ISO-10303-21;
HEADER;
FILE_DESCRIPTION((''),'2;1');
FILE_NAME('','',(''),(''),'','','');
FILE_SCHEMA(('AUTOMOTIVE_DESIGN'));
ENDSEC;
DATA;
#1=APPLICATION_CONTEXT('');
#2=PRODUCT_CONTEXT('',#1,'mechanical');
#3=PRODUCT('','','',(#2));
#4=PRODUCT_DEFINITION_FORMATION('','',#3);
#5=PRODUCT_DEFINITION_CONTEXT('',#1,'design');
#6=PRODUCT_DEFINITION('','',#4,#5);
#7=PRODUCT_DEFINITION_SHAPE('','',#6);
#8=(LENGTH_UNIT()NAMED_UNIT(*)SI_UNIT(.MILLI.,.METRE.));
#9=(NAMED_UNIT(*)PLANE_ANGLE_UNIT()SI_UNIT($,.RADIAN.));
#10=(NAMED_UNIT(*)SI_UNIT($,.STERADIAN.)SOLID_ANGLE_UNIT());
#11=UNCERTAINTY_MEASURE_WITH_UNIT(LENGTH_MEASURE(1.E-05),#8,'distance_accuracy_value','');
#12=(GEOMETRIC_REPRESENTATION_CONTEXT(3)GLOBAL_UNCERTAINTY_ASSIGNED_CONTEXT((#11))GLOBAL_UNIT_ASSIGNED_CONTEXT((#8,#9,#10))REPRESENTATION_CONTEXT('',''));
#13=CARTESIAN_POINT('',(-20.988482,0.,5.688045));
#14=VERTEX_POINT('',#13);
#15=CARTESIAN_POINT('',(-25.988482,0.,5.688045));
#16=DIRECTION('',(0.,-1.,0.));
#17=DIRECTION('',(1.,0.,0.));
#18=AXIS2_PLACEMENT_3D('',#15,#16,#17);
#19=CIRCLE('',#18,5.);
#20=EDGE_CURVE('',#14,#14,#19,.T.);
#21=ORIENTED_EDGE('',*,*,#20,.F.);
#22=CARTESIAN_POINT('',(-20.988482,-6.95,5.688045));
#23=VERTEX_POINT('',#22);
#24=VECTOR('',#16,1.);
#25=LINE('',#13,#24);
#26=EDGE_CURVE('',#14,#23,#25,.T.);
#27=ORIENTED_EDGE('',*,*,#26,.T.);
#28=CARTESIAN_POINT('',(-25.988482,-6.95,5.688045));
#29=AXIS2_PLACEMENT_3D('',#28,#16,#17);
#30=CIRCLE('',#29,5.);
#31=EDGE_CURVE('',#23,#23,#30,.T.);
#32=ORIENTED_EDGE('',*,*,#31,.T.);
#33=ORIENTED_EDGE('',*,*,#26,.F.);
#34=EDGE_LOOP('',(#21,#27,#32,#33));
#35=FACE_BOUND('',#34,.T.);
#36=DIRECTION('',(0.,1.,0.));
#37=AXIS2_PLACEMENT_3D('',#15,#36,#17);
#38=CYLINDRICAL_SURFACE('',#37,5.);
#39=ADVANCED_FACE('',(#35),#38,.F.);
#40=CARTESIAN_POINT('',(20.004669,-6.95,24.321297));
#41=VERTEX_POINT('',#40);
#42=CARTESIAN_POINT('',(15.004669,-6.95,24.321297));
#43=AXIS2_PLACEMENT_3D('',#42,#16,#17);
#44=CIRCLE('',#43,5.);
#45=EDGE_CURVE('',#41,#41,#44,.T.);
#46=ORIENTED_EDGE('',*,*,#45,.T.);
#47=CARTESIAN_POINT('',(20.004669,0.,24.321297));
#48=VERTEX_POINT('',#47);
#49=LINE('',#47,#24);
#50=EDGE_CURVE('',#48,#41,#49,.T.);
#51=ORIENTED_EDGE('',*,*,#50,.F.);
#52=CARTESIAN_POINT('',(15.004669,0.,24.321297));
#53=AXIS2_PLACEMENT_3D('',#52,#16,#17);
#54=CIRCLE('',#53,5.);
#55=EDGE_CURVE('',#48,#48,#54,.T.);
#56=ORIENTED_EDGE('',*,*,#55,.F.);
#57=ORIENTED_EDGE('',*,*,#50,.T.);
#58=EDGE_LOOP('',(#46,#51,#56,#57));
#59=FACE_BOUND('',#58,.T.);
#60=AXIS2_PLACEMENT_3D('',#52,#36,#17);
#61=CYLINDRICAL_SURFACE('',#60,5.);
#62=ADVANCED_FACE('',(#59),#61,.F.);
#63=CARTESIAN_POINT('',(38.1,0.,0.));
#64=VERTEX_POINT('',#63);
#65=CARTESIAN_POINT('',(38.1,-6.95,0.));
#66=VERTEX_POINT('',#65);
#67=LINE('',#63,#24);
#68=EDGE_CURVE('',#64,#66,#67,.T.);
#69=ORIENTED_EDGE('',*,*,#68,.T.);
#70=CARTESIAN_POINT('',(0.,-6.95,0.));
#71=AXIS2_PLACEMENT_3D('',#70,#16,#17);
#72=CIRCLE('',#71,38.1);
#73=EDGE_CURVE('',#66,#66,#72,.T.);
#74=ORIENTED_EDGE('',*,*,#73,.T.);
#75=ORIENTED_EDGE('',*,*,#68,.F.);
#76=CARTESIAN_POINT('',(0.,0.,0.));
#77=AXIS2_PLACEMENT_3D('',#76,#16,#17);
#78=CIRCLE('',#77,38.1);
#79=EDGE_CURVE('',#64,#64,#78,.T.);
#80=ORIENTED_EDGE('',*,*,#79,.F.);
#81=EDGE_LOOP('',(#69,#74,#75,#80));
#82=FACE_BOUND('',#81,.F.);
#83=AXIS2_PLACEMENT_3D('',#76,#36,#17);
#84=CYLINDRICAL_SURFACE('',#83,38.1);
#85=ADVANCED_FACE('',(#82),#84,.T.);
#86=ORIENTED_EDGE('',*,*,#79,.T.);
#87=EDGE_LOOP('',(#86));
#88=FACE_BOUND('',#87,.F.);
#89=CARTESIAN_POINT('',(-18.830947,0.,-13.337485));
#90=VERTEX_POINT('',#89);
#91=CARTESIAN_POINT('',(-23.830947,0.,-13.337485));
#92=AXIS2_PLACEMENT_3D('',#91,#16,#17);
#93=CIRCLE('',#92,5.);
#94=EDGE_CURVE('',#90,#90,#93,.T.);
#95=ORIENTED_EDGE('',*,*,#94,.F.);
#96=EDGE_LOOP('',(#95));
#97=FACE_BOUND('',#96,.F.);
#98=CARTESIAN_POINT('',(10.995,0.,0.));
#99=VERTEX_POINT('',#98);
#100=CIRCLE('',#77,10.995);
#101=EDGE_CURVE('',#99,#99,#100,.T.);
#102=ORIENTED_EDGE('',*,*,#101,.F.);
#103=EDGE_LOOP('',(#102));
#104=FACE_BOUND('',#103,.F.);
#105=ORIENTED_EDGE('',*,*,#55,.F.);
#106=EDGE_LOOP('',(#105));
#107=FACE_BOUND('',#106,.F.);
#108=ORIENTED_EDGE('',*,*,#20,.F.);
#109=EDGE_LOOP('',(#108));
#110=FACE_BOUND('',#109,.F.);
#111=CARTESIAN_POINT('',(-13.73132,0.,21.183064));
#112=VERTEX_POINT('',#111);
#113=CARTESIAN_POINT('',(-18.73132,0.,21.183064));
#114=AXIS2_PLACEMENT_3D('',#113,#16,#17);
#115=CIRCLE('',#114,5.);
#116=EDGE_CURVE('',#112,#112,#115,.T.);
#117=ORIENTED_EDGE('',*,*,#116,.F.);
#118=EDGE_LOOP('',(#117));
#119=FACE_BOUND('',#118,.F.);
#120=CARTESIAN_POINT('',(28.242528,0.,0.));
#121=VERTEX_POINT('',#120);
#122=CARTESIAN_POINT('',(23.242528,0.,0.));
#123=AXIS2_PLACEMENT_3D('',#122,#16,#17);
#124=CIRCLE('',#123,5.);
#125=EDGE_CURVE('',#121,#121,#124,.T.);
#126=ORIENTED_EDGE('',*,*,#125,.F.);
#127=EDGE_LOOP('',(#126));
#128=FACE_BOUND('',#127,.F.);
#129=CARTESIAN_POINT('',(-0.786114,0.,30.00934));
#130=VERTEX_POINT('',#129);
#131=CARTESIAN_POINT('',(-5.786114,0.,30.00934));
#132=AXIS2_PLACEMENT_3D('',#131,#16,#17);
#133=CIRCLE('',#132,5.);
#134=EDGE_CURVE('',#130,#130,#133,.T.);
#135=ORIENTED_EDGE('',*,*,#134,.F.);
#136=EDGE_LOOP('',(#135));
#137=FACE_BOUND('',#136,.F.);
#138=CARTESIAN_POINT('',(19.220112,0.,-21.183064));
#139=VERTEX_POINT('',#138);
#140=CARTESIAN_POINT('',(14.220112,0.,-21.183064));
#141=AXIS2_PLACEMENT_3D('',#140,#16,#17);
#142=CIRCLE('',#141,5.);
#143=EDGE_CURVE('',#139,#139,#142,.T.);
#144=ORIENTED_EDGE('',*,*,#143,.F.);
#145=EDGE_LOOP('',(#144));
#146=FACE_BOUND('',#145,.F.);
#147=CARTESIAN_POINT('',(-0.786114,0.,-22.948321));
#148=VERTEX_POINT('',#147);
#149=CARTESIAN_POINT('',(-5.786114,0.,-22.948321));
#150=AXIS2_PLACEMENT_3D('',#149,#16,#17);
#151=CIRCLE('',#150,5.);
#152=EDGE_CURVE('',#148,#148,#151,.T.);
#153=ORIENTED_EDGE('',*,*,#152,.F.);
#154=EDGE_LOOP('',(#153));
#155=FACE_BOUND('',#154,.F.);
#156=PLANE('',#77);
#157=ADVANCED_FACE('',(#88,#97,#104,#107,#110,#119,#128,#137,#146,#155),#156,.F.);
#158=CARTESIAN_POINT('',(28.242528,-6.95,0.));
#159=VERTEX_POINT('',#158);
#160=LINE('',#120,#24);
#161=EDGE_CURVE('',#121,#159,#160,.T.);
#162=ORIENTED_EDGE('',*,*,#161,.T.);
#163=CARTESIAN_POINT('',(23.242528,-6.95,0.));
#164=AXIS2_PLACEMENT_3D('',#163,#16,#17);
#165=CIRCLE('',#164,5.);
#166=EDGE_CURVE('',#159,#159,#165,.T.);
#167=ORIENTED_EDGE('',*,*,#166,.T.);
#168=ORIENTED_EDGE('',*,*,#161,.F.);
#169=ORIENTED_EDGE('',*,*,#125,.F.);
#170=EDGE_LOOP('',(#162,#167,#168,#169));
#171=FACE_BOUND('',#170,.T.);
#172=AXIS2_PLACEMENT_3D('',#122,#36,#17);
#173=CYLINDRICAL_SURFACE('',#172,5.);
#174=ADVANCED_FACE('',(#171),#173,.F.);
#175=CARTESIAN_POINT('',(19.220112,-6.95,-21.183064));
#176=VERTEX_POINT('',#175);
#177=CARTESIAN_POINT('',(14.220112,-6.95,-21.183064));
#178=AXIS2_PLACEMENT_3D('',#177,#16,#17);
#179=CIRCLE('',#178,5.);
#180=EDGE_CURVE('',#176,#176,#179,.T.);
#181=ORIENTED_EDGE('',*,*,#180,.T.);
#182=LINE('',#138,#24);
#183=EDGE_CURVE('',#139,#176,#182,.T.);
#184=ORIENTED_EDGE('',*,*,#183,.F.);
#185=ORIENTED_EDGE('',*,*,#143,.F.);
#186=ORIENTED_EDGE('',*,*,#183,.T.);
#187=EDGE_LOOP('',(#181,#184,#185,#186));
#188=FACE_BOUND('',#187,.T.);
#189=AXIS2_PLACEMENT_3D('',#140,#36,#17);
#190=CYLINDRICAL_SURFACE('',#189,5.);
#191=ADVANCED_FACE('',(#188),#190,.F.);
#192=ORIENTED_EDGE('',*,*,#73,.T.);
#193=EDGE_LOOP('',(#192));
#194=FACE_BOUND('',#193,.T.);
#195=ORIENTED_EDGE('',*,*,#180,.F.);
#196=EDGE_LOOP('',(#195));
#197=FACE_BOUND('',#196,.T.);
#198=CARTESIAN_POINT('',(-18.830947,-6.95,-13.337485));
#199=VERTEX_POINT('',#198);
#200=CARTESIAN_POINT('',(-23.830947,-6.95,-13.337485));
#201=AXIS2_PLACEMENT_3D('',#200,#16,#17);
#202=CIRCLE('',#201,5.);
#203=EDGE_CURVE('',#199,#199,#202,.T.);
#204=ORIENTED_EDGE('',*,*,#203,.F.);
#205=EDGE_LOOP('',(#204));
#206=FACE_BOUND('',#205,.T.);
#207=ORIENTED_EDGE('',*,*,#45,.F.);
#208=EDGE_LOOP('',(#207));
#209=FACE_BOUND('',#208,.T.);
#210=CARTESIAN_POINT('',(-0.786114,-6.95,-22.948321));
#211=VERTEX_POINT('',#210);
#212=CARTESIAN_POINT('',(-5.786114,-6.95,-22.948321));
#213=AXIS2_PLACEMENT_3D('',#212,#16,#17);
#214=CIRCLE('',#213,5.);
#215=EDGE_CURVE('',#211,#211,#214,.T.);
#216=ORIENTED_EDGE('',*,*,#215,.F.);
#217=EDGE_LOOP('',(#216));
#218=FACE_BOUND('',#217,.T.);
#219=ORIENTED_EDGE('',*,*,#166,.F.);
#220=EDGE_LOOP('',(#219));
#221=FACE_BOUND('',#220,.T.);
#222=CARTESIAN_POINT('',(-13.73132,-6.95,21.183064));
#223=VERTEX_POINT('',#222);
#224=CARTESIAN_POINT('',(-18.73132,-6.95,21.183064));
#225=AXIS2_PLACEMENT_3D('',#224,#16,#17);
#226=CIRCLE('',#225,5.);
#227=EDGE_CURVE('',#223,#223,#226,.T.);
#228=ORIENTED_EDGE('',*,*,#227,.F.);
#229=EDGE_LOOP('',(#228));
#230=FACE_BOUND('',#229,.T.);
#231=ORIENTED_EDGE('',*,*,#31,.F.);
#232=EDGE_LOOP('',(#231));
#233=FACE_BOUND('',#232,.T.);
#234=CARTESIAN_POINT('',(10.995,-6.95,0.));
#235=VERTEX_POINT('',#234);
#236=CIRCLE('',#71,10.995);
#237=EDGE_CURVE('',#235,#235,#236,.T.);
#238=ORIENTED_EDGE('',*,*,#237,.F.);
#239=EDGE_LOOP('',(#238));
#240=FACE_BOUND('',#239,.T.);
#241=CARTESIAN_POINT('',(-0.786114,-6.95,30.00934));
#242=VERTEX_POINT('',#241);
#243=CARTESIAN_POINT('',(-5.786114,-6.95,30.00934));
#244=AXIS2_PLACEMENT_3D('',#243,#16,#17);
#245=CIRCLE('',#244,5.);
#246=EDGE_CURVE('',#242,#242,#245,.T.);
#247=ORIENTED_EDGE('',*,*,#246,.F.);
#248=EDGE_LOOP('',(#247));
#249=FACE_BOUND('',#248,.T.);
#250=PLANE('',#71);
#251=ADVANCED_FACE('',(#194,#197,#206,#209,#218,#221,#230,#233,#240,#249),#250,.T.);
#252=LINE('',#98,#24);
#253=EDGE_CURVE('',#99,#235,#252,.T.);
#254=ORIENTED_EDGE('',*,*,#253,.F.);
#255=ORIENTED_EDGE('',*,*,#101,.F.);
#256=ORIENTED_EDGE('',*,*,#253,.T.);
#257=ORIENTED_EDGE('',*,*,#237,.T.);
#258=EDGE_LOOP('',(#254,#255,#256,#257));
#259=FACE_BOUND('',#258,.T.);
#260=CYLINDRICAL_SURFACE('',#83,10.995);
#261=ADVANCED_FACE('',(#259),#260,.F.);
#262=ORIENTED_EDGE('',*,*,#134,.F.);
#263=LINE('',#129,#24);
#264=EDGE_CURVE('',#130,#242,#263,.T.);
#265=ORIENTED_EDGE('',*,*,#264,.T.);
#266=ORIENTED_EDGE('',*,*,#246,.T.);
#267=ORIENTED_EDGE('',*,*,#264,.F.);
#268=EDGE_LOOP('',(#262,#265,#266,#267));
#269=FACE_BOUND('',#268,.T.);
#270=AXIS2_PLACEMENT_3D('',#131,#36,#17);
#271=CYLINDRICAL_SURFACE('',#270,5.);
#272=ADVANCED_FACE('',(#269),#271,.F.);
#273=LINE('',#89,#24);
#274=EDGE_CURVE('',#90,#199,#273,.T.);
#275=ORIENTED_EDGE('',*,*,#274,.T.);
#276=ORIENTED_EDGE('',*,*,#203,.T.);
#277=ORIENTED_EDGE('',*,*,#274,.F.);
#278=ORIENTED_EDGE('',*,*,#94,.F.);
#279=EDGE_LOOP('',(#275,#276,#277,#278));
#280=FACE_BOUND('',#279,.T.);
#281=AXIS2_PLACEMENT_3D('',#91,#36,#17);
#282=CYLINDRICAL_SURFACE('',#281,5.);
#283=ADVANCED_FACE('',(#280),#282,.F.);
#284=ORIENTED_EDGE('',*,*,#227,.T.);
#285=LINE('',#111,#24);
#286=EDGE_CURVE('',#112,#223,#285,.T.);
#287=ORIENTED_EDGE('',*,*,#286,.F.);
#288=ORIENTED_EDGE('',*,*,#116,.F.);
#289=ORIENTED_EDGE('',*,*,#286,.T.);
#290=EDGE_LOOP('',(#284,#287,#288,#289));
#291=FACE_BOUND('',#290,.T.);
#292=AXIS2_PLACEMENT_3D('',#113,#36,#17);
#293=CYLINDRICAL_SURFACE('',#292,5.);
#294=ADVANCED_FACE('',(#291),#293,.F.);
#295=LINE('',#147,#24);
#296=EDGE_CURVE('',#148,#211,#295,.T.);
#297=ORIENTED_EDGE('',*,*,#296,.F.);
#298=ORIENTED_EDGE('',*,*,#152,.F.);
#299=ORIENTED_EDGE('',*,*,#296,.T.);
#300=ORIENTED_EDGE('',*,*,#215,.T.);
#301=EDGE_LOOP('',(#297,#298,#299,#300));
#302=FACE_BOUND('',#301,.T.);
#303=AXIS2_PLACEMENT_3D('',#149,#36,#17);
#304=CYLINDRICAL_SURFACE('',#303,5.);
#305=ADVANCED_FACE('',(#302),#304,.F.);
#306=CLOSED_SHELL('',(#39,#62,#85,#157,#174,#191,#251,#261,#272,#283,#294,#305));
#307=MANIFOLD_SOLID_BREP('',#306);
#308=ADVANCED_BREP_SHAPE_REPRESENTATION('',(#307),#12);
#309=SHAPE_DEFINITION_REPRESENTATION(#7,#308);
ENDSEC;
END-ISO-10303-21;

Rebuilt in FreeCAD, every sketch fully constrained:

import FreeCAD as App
import Part
import Sketcher
Q = App.Units.Quantity

doc = App.newDocument("Part")
params = doc.addObject("Spreadsheet::Sheet", "Params")
for row, (alias, value) in enumerate([
    ("sketch1_diameter", "10 mm"),
    ("sketch1_diameter2", "76.2 mm"),
    ("sketch1_diameter3", "21.99 mm"),
    ("pad1_length", "6.95 mm"),
], start=1):
    params.set(f"A{row}", alias)
    params.set(f"B{row}", "=" + value)
    params.setAlias(f"B{row}", alias)

body = doc.addObject("PartDesign::Body", "Body")

sketch1 = doc.addObject("Sketcher::SketchObject", "Sketch")
body.addObject(sketch1)
sketch1.AttachmentSupport = (doc.XZ_Plane, [""])
sketch1.MapMode = "FlatFace"
sketch1.addGeometry(Part.Circle(App.Vector(0, 0, 0), App.Vector(0, 0, 1), 38.1), False)
sketch1.addGeometry(Part.Circle(App.Vector(-23.830947, -13.337485, 0), App.Vector(0, 0, 1), 5), False)
sketch1.addGeometry(Part.Circle(App.Vector(-5.786114, -22.948321, 0), App.Vector(0, 0, 1), 5), False)
sketch1.addGeometry(Part.Circle(App.Vector(14.220112, -21.183064, 0), App.Vector(0, 0, 1), 5), False)
sketch1.addGeometry(Part.Circle(App.Vector(0, 0, 0), App.Vector(0, 0, 1), 10.995), False)
sketch1.addGeometry(Part.Circle(App.Vector(23.242528, 0, 0), App.Vector(0, 0, 1), 5), False)
sketch1.addGeometry(Part.Circle(App.Vector(-25.988482, 5.688045, 0), App.Vector(0, 0, 1), 5), False)
sketch1.addGeometry(Part.Circle(App.Vector(-18.73132, 21.183064, 0), App.Vector(0, 0, 1), 5), False)
sketch1.addGeometry(Part.Circle(App.Vector(-5.786114, 30.00934, 0), App.Vector(0, 0, 1), 5), False)
sketch1.addGeometry(Part.Circle(App.Vector(15.004669, 24.321297, 0), App.Vector(0, 0, 1), 5), False)
sketch1.addConstraint(Sketcher.Constraint("Coincident", 0, 3, -1, 1))
sketch1.addConstraint(Sketcher.Constraint("Coincident", 4, 3, -1, 1))
sketch1.addConstraint(Sketcher.Constraint("Equal", 1, 2))
sketch1.addConstraint(Sketcher.Constraint("Equal", 2, 3))
sketch1.addConstraint(Sketcher.Constraint("Equal", 3, 5))
sketch1.addConstraint(Sketcher.Constraint("Equal", 5, 6))
sketch1.addConstraint(Sketcher.Constraint("Equal", 6, 7))
sketch1.addConstraint(Sketcher.Constraint("Equal", 7, 8))
sketch1.addConstraint(Sketcher.Constraint("Equal", 8, 9))
sketch1.addConstraint(Sketcher.Constraint("PointOnObject", 5, 3, -1))
sketch1.addConstraint(Sketcher.Constraint("Vertical", 2, 3, 8, 3))
sketch1.addConstraint(Sketcher.Constraint("Diameter", 1, Q("10 mm")))
sketch1.addConstraint(Sketcher.Constraint("Diameter", 0, Q("76.2 mm")))
sketch1.addConstraint(Sketcher.Constraint("Diameter", 4, Q("21.99 mm")))
sketch1.addConstraint(Sketcher.Constraint("DistanceY", 2, 3, -1, 1, Q("22.948321 mm")))
sketch1.addConstraint(Sketcher.Constraint("DistanceX", -1, 1, 5, 3, Q("23.242528 mm")))
sketch1.addConstraint(Sketcher.Constraint("DistanceX", 7, 3, -1, 1, Q("18.73132 mm")))
sketch1.addConstraint(Sketcher.Constraint("DistanceY", -1, 1, 8, 3, Q("30.00934 mm")))
sketch1.addConstraint(Sketcher.Constraint("DistanceX", -1, 1, 9, 3, Q("15.004669 mm")))
sketch1.addConstraint(Sketcher.Constraint("DistanceX", 1, 3, 3, 3, Q("38.051059 mm")))
sketch1.addConstraint(Sketcher.Constraint("DistanceY", 3, 3, 1, 3, Q("7.845579 mm")))
sketch1.addConstraint(Sketcher.Constraint("DistanceY", 1, 3, 6, 3, Q("19.02553 mm")))
sketch1.addConstraint(Sketcher.Constraint("DistanceX", 6, 3, 2, 3, Q("20.202368 mm")))
sketch1.addConstraint(Sketcher.Constraint("DistanceY", 6, 3, 7, 3, Q("15.495019 mm")))
sketch1.addConstraint(Sketcher.Constraint("DistanceX", 1, 3, -1, 1, Q("23.830947 mm")))
sketch1.addConstraint(Sketcher.Constraint("DistanceY", 1, 3, -1, 1, Q("13.337485 mm")))
sketch1.addConstraint(Sketcher.Constraint("DistanceX", 2, 3, -1, 1, Q("5.786114 mm")))
sketch1.addConstraint(Sketcher.Constraint("DistanceY", -1, 1, 9, 3, Q("24.321297 mm")))
sketch1.setExpression("Constraints[11]", "Params.sketch1_diameter")
sketch1.setExpression("Constraints[12]", "Params.sketch1_diameter2")
sketch1.setExpression("Constraints[13]", "Params.sketch1_diameter3")
pad1 = doc.addObject("PartDesign::Pad", "Pad")
body.addObject(pad1)
pad1.Profile = sketch1
pad1.setExpression("Length", "Params.pad1_length")

doc.recompute()
